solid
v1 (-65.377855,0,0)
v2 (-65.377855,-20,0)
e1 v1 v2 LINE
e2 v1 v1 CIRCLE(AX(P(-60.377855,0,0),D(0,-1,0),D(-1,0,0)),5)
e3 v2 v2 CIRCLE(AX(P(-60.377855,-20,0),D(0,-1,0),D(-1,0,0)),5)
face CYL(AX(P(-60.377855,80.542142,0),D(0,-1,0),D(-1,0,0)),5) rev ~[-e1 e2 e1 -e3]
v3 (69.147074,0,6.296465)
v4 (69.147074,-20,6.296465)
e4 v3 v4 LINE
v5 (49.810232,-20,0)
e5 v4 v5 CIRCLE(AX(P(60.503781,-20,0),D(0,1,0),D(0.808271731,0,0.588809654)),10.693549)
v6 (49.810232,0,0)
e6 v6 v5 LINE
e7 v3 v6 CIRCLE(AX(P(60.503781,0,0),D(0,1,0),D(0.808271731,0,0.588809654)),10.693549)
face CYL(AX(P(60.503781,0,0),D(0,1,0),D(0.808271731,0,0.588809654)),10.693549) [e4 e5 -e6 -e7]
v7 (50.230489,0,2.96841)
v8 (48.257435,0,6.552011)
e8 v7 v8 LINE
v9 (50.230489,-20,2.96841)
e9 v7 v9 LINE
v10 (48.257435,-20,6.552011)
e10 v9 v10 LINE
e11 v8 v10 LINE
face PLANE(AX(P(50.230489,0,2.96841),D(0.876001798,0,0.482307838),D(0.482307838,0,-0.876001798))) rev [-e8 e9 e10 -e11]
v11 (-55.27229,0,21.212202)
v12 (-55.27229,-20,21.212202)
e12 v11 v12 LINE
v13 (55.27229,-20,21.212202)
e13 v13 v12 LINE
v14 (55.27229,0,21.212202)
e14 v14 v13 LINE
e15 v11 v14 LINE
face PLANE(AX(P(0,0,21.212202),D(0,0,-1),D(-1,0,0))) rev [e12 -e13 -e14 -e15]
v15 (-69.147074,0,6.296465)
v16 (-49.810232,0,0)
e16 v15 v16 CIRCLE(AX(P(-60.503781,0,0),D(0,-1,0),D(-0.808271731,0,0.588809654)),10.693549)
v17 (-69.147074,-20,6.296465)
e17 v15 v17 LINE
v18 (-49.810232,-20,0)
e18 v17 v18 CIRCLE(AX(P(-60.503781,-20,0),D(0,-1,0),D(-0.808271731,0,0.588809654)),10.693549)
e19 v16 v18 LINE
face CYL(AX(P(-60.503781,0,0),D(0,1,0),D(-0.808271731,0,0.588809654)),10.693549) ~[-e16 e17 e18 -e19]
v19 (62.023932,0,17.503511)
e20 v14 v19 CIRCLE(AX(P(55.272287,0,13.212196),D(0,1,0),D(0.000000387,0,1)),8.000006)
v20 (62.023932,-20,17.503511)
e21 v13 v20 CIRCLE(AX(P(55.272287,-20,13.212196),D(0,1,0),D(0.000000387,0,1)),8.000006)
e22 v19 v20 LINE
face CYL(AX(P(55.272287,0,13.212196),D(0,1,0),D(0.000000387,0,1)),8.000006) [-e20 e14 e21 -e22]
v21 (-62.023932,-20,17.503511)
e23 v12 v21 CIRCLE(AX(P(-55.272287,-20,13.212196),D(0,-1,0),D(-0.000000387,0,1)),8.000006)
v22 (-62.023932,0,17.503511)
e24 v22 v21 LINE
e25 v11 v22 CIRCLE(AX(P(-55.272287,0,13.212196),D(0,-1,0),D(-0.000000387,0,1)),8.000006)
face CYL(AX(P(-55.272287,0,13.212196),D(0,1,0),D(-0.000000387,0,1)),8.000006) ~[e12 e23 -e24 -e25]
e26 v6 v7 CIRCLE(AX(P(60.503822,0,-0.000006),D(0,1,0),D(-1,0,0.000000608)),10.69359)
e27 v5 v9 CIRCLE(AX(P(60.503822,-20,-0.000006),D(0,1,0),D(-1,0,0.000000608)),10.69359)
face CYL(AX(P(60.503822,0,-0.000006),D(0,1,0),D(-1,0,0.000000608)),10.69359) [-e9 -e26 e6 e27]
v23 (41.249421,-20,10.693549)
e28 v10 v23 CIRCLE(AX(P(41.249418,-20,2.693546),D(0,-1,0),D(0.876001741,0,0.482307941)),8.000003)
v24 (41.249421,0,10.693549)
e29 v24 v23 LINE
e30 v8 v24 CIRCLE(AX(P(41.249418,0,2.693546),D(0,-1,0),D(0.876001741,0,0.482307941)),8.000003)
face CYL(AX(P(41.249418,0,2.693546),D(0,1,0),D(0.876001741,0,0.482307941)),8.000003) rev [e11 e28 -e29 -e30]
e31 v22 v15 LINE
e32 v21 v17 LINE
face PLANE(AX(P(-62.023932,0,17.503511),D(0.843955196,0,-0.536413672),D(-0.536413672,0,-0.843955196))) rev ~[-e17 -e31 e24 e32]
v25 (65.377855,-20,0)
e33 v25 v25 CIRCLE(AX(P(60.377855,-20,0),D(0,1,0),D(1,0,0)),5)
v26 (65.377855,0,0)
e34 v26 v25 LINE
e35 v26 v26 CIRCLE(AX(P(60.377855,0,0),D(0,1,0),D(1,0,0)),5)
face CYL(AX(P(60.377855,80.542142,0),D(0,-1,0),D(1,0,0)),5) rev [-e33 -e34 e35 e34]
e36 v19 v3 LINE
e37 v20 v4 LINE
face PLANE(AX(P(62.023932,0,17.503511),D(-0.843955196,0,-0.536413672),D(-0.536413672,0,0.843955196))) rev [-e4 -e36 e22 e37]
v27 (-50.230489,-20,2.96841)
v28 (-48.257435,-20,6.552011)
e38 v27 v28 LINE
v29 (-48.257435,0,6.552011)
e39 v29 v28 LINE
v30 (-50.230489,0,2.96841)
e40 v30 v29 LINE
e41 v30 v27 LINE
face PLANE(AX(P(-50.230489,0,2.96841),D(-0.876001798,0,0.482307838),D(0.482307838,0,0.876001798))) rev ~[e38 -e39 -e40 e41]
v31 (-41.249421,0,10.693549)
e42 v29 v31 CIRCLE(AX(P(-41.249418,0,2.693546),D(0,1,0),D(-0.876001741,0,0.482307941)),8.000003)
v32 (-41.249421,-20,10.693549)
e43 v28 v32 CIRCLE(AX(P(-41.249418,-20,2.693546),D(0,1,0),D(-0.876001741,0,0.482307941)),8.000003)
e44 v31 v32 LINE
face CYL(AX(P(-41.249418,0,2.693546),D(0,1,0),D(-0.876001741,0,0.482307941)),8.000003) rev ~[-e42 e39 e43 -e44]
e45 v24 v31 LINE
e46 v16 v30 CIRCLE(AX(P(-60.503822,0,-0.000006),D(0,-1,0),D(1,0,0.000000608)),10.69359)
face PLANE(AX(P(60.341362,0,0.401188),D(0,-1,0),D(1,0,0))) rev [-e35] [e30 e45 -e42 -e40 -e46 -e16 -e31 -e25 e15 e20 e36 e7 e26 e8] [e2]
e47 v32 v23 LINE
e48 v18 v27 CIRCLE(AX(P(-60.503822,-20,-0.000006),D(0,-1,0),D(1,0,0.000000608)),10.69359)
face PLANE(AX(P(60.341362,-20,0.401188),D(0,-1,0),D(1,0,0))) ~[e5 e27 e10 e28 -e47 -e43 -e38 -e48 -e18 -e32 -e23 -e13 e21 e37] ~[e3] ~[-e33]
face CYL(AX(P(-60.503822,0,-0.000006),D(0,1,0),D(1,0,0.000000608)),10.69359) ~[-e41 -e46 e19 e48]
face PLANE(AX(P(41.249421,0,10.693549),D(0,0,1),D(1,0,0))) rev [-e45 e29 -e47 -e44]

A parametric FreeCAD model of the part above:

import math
import FreeCAD as App
import Part
import Sketcher

V = App.Vector
Q = App.Units.Quantity

doc = App.newDocument("Part")
params = doc.addObject("Spreadsheet::Sheet", "Params")
for row, (alias, value) in enumerate([
    ("pad1_length", "20 mm"),
    ("sketch2_diameter", "10 mm"),
    ("hole_diameter", "10 mm"),
    ("pad2_length", "20 mm"),
    ("sketch4_diameter", "10 mm"),
    ("hole2_diameter", "10 mm"),
], start=1):
    params.set(f"A{row}", alias)
    params.set(f"B{row}", "=" + value)
    params.setAlias(f"B{row}", alias)

body = doc.addObject("PartDesign::Body", "Body")

# Sketch on XZ plane
sketch1 = doc.addObject("Sketcher::SketchObject", "Sketch")
body.addObject(sketch1)
sketch1.AttachmentSupport = (doc.XZ_Plane, [""])
sketch1.MapMode = "FlatFace"
sketch1.addGeometry([
    Part.ArcOfCircle(Part.Circle(V(-60.503781, 0, 0), V(0, 0, 1), 10.693549), math.radians(143.927417), math.radians(359.999999)),
    Part.ArcOfCircle(Part.Circle(V(-60.503822, -0.000006, 0), V(0, 0, 1), 10.69359), math.radians(0.000035), math.radians(16.116325)),
    Part.ArcOfCircle(Part.Circle(V(-60.503781, 0, 0), V(0, 0, 1), 10.693549), math.radians(16.116355), math.radians(143.927414)),
], False)
sketch1.addConstraint([
    Sketcher.Constraint("Coincident", 0, 2, 1, 1),
    Sketcher.Constraint("Coincident", 1, 2, 2, 1),
    Sketcher.Constraint("Coincident", 2, 2, 0, 1),
    Sketcher.Constraint("Coincident", 2, 3, 0, 3),
    Sketcher.Constraint("PointOnObject", 0, 3, -1),
    Sketcher.Constraint("PointOnObject", 0, 2, -1),
    Sketcher.Constraint("Radius", 0, Q("10.693549 mm")),
    Sketcher.Constraint("Radius", 1, Q("10.69359 mm")),
    Sketcher.Constraint("DistanceX", 0, 3, -1, 1, Q("60.503781 mm")),
    Sketcher.Constraint("DistanceX", 1, 2, -1, 1, Q("50.230489 mm")),
    Sketcher.Constraint("DistanceX", 2, 2, 1, 3, Q("8.643252 mm")),
])
pad1 = doc.addObject("PartDesign::Pad", "Pad")
body.addObject(pad1)
pad1.Profile = sketch1
pad1.setExpression("Length", "Params.pad1_length")

# Sketch on XZ plane
sketch2 = doc.addObject("Sketcher::SketchObject", "Sketch001")
body.addObject(sketch2)
sketch2.AttachmentSupport = (doc.XZ_Plane, [""])
sketch2.MapMode = "FlatFace"
sketch2.AttachmentOffset = App.Placement(V(0, 0, 20), App.Rotation())
sketch2.addGeometry(Part.Circle(V(-60.503781, 0, 0), V(0, 0, 1), 5), False)
sketch2.addConstraint([
    Sketcher.Constraint("PointOnObject", 0, 3, -1),
    Sketcher.Constraint("Diameter", 0, Q("10 mm")),
    Sketcher.Constraint("DistanceX", 0, 3, -1, 1, Q("60.503781 mm")),
])
sketch2.setExpression("Constraints[1]", "Params.sketch2_diameter")
doc.recompute()
hole = doc.addObject("PartDesign::Hole", "Hole")
body.addObject(hole)
hole.Profile = sketch2
hole.ThreadType = "None"
hole.setExpression("Diameter", "Params.hole_diameter")
hole.DepthType = "ThroughAll"

# Sketch on XZ plane
sketch3 = doc.addObject("Sketcher::SketchObject", "Sketch002")
body.addObject(sketch3)
sketch3.AttachmentSupport = (doc.XZ_Plane, [""])
sketch3.MapMode = "FlatFace"
sketch3.addGeometry([
    Part.ArcOfCircle(Part.Circle(V(-60.503781, 0, 0), V(0, 0, 1), 10.693549), math.radians(143.927417), math.radians(359.999999)),  # 0
    Part.ArcOfCircle(Part.Circle(V(-60.503822, -0.000006, 0), V(0, 0, 1), 10.69359), math.radians(0.000035), math.radians(16.116325)),  # 1
    Part.LineSegment(V(-50.230489, 2.96841, 0), V(-48.257435, 6.552011, 0)),  # 2
    Part.ArcOfCircle(Part.Circle(V(-41.249418, 2.693546, 0), V(0, 0, 1), 8.000003), math.radians(90.000018), math.radians(151.163754)),  # 3
    Part.LineSegment(V(-41.249421, 10.693549, 0), V(0, 10.693549, 0)),  # 4
    Part.LineSegment(V(0, 10.693549, 0), V(0, 21.212202, 0)),  # 5
    Part.LineSegment(V(0, 21.212202, 0), V(-55.27229, 21.212202, 0)),  # 6
    Part.ArcOfCircle(Part.Circle(V(-55.272287, 13.212196, 0), V(0, 0, 1), 8.000006), math.radians(90.000022), math.radians(147.560146)),  # 7
    Part.LineSegment(V(-62.023932, 17.503511, 0), V(-69.147074, 6.296465, 0)),  # 8
], False)
sketch3.addConstraint([
    Sketcher.Constraint("Coincident", 0, 2, 1, 1),
    Sketcher.Constraint("Coincident", 1, 2, 2, 1),
    Sketcher.Constraint("Coincident", 2, 2, 3, 2),
    Sketcher.Constraint("Coincident", 3, 1, 4, 1),
    Sketcher.Constraint("Coincident", 4, 2, 5, 1),
    Sketcher.Constraint("Coincident", 5, 2, 6, 1),
    Sketcher.Constraint("Coincident", 6, 2, 7, 1),
    Sketcher.Constraint("Coincident", 7, 2, 8, 1),
    Sketcher.Constraint("Coincident", 8, 2, 0, 1),
    Sketcher.Constraint("Horizontal", 4),
    Sketcher.Constraint("Vertical", 5),
    Sketcher.Constraint("Horizontal", 6),
    Sketcher.Constraint("PointOnObject", 0, 3, -1),
    Sketcher.Constraint("PointOnObject", 0, 2, -1),
    Sketcher.Constraint("PointOnObject", 4, 2, -2),
    Sketcher.Constraint("Radius", 0, Q("10.693549 mm")),
    Sketcher.Constraint("Radius", 1, Q("10.69359 mm")),
    Sketcher.Constraint("Radius", 3, Q("8.000003 mm")),
    Sketcher.Constraint("Radius", 7, Q("8.000006 mm")),
    Sketcher.Constraint("DistanceX", 4, 1, 4, 2, Q("41.249421 mm")),
    Sketcher.Constraint("DistanceX", 6, 2, 6, 1, Q("55.27229 mm")),
    Sketcher.Constraint("DistanceY", 1, 2, 2, 2, Q("3.583601 mm")),
    Sketcher.Constraint("DistanceX", 6, 2, 1, 2, Q("5.041801 mm")),
    Sketcher.Constraint("DistanceY", 0, 3, 6, 2, Q("21.212202 mm")),
    Sketcher.Constraint("DistanceY", 2, 2, 7, 2, Q("10.9515 mm")),
    Sketcher.Constraint("Distance", 2, Q("4.09086 mm")),
    Sketcher.Constraint("DistanceY", 5, 1, 5, 2, Q("10.518653 mm")),
    Sketcher.Constraint("DistanceX", 0, 3, -1, 1, Q("60.503781 mm")),
    Sketcher.Constraint("DistanceX", 3, 3, -1, 1, Q("41.249418 mm")),
    Sketcher.Constraint("DistanceX", 7, 3, 3, 3, Q("14.022868 mm")),
    Sketcher.Constraint("DistanceX", 8, 2, 1, 3, Q("8.643252 mm")),
])
pad2 = doc.addObject("PartDesign::Pad", "Pad001")
body.addObject(pad2)
pad2.Profile = sketch3
pad2.setExpression("Length", "Params.pad2_length")

# Sketch on XZ plane
sketch4 = doc.addObject("Sketcher::SketchObject", "Sketch003")
body.addObject(sketch4)
sketch4.AttachmentSupport = (doc.XZ_Plane, [""])
sketch4.MapMode = "FlatFace"
sketch4.addGeometry(Part.Circle(V(-60.377855, 0, 0), V(0, 0, 1), 5), False)
sketch4.addConstraint([
    Sketcher.Constraint("PointOnObject", 0, 3, -1),
    Sketcher.Constraint("Diameter", 0, Q("10 mm")),
    Sketcher.Constraint("DistanceX", 0, 3, -1, 1, Q("60.377855 mm")),
])
sketch4.setExpression("Constraints[1]", "Params.sketch4_diameter")
doc.recompute()
hole2 = doc.addObject("PartDesign::Hole", "Hole001")
body.addObject(hole2)
hole2.Profile = sketch4
hole2.ThreadType = "None"
hole2.setExpression("Diameter", "Params.hole2_diameter")
hole2.DepthType = "ThroughAll"
hole2.Reversed = True
body2 = doc.addObject("PartDesign::Body", "Body001")
doc.recompute()

body2.BaseFeature = body
doc.recompute()

mirroring = doc.addObject("Part::Mirroring", "Mirroring")
mirroring.Source = body
mirroring.Base = V(0, 0, 0)
mirroring.Normal = V(1, 0, 0)
body3 = doc.addObject("PartDesign::Body", "Body002")
body3.BaseFeature = mirroring
boolean = doc.addObject("PartDesign::Boolean", "Boolean")
body2.addObject(boolean)
boolean.Type = "Fuse"
boolean.addObjects([body3])
doc.recompute()
mirroring.Visibility = False

doc.recompute()
